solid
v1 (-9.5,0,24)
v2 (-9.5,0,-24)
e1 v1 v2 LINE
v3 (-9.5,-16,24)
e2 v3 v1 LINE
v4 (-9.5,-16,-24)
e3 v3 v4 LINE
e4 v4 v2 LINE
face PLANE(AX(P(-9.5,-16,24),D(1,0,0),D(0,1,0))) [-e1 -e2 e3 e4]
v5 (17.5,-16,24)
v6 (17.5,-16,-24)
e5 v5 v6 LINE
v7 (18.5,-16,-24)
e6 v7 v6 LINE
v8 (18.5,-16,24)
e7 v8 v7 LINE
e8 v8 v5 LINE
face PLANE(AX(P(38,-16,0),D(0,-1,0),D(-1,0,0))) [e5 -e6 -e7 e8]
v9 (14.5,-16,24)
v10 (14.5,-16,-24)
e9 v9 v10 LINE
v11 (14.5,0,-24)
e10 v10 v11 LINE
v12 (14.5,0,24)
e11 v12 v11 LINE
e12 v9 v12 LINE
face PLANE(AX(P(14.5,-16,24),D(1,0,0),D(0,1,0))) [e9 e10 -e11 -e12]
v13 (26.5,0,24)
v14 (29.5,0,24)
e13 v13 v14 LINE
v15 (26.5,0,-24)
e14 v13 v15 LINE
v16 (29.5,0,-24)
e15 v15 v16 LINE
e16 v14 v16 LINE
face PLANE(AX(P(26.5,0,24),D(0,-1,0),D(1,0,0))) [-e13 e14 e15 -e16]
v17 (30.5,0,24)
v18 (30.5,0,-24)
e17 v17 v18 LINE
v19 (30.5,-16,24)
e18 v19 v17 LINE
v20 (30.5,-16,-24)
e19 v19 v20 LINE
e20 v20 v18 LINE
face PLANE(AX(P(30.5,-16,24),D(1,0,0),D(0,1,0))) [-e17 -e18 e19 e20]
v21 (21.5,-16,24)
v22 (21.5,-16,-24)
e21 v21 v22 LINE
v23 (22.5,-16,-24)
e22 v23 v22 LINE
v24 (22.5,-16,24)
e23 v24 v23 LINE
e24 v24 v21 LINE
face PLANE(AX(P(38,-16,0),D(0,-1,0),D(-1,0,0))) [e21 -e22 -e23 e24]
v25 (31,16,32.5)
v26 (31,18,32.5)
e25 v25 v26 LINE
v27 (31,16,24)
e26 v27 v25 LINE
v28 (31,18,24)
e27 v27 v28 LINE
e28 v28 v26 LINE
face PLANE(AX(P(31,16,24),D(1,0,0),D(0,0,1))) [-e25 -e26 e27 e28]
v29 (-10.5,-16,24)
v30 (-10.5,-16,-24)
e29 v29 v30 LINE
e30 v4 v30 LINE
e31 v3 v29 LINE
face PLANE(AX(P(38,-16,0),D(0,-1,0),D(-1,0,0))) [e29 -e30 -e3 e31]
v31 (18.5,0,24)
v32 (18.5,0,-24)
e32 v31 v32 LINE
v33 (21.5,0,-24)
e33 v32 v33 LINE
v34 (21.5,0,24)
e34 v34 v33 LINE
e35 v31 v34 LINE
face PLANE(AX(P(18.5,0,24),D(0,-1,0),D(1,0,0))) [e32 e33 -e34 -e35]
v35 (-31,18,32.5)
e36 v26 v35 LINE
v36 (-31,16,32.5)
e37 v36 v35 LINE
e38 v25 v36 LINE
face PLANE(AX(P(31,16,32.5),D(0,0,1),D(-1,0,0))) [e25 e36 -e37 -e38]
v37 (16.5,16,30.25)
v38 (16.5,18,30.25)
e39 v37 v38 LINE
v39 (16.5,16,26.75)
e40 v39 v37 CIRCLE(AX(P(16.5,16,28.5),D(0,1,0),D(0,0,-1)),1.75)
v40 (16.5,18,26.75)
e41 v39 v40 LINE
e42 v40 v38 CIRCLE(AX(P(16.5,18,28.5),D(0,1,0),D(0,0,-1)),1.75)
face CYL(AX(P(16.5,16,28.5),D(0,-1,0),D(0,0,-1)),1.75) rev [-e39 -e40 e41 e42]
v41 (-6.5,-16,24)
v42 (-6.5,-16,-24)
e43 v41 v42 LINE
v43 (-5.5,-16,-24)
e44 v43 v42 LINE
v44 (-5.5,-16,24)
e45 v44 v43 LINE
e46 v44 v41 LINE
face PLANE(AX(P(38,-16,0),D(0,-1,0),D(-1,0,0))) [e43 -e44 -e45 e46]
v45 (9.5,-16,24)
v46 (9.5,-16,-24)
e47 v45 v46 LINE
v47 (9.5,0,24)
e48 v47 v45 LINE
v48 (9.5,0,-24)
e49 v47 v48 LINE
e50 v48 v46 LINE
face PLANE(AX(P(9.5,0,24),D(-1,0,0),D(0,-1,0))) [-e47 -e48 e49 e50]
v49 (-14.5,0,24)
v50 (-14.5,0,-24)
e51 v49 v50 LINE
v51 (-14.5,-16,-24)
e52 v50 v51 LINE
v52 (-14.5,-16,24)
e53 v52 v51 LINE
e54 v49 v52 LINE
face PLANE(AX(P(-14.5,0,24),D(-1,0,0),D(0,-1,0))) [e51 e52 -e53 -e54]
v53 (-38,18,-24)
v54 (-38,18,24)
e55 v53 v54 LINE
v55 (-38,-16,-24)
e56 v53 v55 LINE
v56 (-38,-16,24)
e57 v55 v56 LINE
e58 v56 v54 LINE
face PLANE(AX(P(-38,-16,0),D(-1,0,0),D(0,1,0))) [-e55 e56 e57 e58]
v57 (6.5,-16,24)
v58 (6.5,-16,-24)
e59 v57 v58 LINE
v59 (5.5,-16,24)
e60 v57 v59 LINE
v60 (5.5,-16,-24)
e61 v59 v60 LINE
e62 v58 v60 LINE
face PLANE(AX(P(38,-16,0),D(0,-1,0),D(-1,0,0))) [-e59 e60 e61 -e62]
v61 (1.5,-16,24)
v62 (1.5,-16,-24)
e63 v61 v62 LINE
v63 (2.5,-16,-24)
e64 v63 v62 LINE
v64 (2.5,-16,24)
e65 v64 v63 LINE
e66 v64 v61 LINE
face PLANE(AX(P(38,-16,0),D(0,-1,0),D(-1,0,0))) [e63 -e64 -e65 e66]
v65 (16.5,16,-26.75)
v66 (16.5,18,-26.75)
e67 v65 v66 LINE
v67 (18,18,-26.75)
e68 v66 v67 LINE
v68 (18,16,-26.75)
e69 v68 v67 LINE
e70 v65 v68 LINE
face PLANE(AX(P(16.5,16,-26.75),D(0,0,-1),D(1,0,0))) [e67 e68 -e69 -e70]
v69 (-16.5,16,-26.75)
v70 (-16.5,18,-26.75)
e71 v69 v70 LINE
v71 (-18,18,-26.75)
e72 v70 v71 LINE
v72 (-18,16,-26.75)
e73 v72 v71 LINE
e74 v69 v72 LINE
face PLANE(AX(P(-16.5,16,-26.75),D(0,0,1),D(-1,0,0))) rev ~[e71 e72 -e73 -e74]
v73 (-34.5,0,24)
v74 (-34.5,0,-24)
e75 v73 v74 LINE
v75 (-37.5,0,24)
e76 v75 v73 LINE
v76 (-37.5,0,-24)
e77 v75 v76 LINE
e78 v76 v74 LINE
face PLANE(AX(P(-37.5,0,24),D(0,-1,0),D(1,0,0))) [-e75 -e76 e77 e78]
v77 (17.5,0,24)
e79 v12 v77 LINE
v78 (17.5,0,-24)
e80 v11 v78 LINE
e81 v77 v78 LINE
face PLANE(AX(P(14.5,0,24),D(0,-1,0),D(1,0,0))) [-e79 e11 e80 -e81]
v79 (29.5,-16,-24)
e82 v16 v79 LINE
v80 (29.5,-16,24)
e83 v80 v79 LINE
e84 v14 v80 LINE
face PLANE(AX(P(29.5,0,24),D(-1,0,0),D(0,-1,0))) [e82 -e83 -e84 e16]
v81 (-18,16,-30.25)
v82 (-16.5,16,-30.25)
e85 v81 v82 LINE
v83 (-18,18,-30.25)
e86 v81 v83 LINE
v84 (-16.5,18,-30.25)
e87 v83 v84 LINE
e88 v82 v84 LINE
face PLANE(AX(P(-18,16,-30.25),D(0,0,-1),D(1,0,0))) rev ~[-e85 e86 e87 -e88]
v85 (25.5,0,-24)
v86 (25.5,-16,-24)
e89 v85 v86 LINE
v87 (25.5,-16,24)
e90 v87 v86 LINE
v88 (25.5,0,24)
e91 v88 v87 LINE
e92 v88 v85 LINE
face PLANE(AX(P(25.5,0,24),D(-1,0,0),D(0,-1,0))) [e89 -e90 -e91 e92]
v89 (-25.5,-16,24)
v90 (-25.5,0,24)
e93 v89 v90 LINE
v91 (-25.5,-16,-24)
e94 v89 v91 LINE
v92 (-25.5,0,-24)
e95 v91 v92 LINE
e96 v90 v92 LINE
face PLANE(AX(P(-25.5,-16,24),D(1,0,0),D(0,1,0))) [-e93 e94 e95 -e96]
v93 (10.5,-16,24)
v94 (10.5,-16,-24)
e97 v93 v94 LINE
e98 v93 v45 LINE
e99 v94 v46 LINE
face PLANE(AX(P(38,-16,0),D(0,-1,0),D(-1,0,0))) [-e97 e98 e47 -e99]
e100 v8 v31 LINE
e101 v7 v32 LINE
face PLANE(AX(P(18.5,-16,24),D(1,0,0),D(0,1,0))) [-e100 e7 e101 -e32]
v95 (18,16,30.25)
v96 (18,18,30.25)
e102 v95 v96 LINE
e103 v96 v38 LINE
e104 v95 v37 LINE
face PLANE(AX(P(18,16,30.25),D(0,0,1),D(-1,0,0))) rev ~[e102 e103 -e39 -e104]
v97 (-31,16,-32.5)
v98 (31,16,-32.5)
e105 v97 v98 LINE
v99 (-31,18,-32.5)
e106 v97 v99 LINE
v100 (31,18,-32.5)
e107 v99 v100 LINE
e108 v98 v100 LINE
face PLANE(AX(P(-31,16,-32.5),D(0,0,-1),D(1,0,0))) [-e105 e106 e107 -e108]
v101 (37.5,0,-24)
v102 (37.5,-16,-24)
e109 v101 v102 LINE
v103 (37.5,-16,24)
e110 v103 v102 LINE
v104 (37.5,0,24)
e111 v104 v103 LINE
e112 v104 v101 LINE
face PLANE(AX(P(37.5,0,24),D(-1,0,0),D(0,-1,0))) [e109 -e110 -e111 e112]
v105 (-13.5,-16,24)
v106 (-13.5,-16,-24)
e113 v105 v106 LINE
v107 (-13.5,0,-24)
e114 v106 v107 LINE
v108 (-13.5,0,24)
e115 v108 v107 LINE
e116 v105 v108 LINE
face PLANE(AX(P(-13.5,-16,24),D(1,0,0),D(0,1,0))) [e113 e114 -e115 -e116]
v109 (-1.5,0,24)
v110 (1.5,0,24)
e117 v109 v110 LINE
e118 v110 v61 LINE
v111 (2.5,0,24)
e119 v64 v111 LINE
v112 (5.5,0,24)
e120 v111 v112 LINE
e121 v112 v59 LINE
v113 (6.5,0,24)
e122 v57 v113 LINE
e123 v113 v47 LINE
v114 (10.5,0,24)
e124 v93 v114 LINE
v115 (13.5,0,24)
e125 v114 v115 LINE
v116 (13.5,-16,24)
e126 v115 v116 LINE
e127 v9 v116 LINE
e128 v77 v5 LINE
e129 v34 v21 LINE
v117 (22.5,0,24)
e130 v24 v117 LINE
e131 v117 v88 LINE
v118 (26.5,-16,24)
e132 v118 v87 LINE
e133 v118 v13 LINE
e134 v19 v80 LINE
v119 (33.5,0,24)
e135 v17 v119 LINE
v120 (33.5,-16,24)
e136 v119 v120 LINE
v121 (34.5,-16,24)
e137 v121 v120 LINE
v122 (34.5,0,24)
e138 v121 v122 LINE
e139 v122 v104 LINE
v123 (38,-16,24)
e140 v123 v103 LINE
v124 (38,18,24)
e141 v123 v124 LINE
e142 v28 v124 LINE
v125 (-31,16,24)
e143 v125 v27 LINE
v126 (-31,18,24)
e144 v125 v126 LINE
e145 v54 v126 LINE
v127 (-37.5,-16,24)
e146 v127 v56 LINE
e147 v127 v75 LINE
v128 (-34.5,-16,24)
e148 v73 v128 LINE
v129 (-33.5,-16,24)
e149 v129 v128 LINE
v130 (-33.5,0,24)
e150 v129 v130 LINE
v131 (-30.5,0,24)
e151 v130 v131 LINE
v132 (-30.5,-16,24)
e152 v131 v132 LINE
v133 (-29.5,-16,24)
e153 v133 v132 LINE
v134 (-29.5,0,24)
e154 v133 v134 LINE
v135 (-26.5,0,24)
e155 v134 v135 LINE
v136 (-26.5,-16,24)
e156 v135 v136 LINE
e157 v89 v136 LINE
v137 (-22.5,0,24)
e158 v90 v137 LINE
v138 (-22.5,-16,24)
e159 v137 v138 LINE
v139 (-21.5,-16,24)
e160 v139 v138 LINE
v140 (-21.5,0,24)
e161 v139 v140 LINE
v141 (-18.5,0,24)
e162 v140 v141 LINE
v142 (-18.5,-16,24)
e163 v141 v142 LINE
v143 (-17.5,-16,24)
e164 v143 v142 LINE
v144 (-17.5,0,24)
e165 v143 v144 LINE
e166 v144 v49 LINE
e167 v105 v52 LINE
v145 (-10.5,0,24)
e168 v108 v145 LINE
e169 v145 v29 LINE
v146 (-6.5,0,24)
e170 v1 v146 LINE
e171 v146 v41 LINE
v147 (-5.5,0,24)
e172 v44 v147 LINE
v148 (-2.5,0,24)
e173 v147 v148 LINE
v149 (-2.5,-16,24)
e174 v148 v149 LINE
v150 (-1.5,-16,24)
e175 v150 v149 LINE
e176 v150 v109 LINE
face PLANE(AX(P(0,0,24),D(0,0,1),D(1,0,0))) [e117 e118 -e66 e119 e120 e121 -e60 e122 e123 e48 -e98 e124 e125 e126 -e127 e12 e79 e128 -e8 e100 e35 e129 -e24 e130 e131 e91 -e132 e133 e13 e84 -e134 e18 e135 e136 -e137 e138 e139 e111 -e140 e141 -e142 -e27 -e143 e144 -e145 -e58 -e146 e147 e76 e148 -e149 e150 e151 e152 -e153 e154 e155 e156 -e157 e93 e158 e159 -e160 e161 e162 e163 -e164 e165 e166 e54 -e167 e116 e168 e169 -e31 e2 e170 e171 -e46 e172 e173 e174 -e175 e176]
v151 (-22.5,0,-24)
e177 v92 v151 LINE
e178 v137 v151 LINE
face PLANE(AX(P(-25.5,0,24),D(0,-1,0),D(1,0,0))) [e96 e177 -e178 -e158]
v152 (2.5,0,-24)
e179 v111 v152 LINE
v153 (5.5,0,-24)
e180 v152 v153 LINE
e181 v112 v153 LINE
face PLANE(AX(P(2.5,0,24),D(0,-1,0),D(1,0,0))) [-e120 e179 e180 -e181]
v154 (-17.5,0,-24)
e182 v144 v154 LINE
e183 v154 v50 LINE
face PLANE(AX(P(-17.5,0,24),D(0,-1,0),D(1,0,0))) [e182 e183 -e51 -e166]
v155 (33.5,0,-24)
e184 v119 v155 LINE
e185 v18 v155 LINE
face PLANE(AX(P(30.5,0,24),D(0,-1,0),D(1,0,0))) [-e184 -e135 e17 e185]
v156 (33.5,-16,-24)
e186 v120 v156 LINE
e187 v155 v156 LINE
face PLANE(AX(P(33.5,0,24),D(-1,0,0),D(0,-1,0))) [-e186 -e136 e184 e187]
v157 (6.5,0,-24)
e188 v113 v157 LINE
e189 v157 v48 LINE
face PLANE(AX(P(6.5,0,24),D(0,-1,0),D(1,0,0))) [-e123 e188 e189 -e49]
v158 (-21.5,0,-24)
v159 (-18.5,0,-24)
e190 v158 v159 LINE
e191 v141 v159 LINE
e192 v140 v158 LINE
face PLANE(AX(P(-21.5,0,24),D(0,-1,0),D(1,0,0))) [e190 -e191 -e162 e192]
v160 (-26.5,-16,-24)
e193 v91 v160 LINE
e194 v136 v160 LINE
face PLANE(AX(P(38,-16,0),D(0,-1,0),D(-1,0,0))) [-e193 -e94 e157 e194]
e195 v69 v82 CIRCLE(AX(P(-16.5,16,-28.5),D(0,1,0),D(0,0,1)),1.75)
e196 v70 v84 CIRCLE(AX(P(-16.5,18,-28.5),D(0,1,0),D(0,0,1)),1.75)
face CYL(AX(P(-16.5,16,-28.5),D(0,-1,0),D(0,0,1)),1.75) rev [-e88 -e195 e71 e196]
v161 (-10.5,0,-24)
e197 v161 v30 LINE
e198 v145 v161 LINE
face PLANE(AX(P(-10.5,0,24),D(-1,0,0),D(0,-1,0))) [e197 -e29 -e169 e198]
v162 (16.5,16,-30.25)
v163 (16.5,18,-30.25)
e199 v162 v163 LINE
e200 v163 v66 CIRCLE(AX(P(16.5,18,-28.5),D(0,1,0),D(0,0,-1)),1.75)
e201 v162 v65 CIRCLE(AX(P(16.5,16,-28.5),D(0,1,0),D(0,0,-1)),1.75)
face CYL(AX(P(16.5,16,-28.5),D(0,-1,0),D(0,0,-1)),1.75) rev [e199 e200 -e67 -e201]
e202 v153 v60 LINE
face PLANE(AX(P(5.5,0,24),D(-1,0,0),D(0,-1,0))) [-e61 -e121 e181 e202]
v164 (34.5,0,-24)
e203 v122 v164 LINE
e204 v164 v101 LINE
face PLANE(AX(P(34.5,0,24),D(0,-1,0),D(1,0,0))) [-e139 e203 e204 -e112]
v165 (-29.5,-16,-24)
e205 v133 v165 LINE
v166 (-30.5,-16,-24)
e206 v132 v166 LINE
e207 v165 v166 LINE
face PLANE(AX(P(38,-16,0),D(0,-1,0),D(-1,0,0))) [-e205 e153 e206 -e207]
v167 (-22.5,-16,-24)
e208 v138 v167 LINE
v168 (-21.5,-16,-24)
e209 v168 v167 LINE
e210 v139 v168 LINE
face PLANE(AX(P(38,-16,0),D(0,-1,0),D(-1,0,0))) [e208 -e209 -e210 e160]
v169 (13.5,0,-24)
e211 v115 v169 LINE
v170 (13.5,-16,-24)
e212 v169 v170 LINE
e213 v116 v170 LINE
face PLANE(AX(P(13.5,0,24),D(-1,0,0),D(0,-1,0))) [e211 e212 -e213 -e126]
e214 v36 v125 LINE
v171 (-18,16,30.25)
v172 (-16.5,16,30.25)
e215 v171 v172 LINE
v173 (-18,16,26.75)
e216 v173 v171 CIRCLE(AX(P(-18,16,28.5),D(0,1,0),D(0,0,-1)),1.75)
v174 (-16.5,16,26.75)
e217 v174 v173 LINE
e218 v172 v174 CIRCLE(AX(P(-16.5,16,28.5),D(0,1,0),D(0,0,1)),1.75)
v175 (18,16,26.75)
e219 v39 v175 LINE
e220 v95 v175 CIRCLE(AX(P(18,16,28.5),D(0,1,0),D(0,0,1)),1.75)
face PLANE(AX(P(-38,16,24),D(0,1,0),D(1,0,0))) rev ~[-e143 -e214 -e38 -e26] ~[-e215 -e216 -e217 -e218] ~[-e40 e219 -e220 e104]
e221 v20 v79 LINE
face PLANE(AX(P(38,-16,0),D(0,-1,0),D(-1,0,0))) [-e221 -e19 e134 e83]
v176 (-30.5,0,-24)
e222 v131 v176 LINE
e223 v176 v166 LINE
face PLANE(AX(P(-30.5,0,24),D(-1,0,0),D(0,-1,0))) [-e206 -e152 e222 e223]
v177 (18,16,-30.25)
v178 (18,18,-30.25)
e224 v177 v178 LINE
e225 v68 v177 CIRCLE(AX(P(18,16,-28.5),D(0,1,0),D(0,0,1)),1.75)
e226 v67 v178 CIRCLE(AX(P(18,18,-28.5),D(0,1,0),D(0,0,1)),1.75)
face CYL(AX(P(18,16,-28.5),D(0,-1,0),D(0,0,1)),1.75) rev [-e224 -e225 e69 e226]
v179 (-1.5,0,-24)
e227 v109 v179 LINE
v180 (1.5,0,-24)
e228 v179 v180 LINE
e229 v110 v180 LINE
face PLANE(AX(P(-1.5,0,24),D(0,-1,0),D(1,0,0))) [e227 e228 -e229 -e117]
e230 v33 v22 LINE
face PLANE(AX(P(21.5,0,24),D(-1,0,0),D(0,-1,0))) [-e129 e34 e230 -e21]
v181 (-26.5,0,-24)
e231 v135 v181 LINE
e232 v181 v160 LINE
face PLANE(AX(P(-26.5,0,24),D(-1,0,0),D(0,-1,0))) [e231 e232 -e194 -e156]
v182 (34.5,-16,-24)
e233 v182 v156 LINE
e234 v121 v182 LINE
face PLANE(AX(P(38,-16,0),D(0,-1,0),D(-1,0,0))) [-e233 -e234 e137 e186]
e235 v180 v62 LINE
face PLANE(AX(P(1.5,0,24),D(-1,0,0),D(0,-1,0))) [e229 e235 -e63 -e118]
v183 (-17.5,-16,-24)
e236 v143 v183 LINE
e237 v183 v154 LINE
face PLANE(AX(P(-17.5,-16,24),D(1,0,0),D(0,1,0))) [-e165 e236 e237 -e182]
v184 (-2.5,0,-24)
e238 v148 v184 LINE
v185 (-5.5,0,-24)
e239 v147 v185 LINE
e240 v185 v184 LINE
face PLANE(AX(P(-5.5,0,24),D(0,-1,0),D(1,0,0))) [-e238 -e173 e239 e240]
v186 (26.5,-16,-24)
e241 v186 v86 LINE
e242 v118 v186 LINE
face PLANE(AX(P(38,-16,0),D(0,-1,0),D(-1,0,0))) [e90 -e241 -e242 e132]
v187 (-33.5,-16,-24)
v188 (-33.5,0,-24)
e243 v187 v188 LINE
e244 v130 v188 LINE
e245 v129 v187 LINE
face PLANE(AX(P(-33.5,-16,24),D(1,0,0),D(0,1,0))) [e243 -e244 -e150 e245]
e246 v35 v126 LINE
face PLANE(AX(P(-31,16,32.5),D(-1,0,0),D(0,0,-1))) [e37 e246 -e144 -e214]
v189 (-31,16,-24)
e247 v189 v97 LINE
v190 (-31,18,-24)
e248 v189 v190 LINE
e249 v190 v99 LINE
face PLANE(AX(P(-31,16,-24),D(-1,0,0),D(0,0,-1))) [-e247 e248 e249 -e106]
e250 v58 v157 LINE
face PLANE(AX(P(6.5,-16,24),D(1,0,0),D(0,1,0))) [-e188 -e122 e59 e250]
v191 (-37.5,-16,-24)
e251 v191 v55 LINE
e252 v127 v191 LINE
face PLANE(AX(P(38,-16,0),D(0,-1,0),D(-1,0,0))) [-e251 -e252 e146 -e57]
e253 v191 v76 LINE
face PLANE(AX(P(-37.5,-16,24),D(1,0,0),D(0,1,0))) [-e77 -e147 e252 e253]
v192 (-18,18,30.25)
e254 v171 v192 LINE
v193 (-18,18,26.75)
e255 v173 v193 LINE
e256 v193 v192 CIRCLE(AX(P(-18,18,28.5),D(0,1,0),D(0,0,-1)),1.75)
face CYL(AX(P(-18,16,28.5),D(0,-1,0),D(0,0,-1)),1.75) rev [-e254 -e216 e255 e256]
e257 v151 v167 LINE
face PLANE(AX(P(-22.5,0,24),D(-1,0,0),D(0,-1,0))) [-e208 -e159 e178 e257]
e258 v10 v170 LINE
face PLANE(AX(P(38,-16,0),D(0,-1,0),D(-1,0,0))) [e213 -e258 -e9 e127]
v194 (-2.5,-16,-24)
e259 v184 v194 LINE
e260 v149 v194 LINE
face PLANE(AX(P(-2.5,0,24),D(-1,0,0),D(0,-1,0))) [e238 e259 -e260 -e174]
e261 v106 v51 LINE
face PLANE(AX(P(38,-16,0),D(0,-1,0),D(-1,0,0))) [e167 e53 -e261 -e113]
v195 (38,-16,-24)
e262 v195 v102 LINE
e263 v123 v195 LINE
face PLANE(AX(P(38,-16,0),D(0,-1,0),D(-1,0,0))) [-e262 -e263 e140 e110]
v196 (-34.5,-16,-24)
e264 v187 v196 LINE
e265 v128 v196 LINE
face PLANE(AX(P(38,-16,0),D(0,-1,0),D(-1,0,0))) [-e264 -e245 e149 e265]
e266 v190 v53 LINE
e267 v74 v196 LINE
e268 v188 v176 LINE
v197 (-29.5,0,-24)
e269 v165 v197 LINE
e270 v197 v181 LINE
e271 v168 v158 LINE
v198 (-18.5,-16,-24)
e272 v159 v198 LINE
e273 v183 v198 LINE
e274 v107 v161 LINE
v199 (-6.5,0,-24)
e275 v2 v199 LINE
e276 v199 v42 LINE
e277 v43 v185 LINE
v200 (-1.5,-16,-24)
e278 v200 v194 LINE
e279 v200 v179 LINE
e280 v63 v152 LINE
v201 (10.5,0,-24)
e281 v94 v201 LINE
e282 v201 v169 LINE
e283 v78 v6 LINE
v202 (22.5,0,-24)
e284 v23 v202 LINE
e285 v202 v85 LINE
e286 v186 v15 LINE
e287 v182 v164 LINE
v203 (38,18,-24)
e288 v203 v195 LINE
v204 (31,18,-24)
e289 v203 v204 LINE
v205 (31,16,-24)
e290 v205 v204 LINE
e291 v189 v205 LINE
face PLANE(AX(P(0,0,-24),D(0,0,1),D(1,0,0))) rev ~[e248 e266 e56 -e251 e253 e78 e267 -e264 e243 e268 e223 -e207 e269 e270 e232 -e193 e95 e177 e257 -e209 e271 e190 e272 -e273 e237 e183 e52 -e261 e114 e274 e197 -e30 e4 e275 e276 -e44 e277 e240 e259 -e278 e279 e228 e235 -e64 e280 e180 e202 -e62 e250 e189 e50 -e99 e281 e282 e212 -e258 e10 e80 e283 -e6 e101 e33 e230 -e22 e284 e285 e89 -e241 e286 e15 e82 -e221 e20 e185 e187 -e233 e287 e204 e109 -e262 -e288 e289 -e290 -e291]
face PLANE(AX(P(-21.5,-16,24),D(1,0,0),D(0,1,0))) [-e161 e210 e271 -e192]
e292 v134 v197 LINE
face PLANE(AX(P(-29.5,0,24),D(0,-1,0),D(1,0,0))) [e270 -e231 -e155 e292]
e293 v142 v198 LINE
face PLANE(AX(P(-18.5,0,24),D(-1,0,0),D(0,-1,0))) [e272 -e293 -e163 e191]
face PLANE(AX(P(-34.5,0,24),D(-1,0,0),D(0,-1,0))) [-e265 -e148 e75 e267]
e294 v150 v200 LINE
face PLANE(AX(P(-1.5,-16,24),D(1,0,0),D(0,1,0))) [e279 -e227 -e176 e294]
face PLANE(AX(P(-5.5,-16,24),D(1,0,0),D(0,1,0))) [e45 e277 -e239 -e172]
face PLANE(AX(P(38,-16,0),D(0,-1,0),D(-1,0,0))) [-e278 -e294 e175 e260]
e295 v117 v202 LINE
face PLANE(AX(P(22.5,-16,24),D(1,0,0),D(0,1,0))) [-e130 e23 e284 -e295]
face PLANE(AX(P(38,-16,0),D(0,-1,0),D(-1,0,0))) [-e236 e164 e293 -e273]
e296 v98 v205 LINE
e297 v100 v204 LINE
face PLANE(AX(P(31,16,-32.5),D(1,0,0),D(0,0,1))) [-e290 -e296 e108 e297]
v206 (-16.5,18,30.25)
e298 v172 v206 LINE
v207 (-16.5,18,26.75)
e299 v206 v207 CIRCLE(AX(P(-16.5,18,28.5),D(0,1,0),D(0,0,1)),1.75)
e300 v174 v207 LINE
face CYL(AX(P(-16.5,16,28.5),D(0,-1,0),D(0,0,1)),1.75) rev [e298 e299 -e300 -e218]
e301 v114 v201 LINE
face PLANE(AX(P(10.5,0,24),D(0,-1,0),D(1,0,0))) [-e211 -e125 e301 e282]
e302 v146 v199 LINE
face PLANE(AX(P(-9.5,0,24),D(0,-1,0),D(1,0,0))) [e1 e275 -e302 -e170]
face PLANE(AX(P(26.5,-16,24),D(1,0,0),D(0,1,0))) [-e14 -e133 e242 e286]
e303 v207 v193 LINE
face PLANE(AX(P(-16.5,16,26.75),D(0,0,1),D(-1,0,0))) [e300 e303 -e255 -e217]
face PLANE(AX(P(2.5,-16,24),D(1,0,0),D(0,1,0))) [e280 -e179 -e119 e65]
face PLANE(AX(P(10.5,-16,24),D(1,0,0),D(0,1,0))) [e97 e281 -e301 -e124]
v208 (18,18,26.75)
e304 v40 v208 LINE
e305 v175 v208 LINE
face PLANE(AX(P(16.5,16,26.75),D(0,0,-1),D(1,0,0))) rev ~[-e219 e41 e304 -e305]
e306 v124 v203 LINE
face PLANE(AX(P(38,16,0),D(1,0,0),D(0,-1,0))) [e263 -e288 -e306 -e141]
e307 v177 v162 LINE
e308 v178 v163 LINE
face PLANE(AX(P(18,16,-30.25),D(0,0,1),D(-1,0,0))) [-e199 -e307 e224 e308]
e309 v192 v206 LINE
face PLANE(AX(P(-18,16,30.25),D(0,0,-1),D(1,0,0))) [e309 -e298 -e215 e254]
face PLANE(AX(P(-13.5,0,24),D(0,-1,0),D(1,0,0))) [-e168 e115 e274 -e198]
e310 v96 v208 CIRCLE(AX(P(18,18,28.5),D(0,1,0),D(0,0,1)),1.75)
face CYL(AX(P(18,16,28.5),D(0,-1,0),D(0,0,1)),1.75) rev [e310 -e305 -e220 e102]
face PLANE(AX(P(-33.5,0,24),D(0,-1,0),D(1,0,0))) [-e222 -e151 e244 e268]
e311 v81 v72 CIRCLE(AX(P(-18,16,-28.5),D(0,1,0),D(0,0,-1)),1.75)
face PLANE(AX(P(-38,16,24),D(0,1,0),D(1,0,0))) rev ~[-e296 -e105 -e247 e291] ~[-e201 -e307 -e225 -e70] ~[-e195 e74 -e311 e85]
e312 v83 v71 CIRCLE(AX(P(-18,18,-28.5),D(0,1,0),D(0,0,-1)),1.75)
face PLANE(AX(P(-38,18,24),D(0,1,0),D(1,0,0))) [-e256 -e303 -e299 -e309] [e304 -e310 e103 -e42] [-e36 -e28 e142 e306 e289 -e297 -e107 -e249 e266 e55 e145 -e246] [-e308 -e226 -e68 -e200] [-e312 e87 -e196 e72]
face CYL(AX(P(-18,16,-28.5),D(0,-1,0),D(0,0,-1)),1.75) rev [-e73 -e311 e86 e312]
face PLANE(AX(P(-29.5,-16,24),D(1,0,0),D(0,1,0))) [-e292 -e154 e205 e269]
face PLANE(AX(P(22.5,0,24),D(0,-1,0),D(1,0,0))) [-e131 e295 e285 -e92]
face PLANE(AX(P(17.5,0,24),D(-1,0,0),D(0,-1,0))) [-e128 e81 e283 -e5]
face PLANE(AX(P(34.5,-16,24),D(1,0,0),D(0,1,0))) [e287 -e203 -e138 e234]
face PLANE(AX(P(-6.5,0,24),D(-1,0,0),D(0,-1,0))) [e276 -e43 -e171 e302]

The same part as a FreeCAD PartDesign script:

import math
import FreeCAD as App
import Part
import Sketcher
Q = App.Units.Quantity


def add_polygon(sketch, points):
    """Adds a closed chain of lines whose ends are joined by coincident constraints."""
    first, n = sketch.GeometryCount, len(points)
    for a, b in zip(points, points[1:] + points[:1]):
        sketch.addGeometry(Part.LineSegment(App.Vector(*a, 0), App.Vector(*b, 0)), False)
    for i in range(n):
        sketch.addConstraint(Sketcher.Constraint("Coincident", first + i, 2, first + (i + 1) % n, 1))

doc = App.newDocument("Part")
body = doc.addObject("PartDesign::Body", "Body")

# Sketch on XY plane
sketch1 = doc.addObject("Sketcher::SketchObject", "Sketch")
body.addObject(sketch1)
sketch1.AttachmentSupport = (doc.XY_Plane, [""])
sketch1.MapMode = "FlatFace"
add_polygon(sketch1, [(38, 16), (-38, 16), (-38, -16), (38, -16)])  # lines 0-3
sketch1.addConstraint(Sketcher.Constraint("Horizontal", 0))
sketch1.addConstraint(Sketcher.Constraint("Vertical", 1))
sketch1.addConstraint(Sketcher.Constraint("Horizontal", 2))
sketch1.addConstraint(Sketcher.Constraint("Vertical", 3))
sketch1.addConstraint(Sketcher.Constraint("Symmetric", 0, 2, 2, 2, -1, 1))
sketch1.addConstraint(Sketcher.Constraint("DistanceX", 0, 2, 0, 1, Q("76 mm")))
sketch1.addConstraint(Sketcher.Constraint("DistanceY", 1, 2, 1, 1, Q("32 mm")))
pad1 = doc.addObject("PartDesign::Pad", "Pad")
body.addObject(pad1)
pad1.Profile = sketch1
pad1.Length = 48
pad1.Midplane = True

# Sketch on XZ plane
sketch2 = doc.addObject("Sketcher::SketchObject", "Sketch001")
body.addObject(sketch2)
sketch2.AttachmentSupport = (doc.XZ_Plane, [""])
sketch2.MapMode = "FlatFace"
sketch2.AttachmentOffset = App.Placement(App.Vector(0, 0, -16), App.Rotation())
add_polygon(sketch2, [(-31, 32.5), (31, 32.5), (31, 24), (38, 24), (38, -24), (31, -24), (31, -32.5), (-31, -32.5), (-31, -24), (-38, -24), (-38, 24), (-31, 24)])  # lines 0-11
sketch2.addGeometry(Part.LineSegment(App.Vector(-16.5, 30.2, 0), App.Vector(-18, 30.2, 0)), False)  # 12
sketch2.addGeometry(Part.ArcOfCircle(Part.Circle(App.Vector(-18, 28.5, 0), App.Vector(0, 0, 1), 1.8), math.radians(90), math.radians(270)), False)  # 13
sketch2.addGeometry(Part.LineSegment(App.Vector(-18, 26.8, 0), App.Vector(-16.5, 26.8, 0)), False)  # 14
sketch2.addGeometry(Part.ArcOfCircle(Part.Circle(App.Vector(-16.5, 28.5, 0), App.Vector(0, 0, 1), 1.8), math.radians(-90), math.radians(90)), False)  # 15
sketch2.addGeometry(Part.ArcOfCircle(Part.Circle(App.Vector(18, 28.5, 0), App.Vector(0, 0, 1), 1.8), math.radians(-90), math.radians(90)), False)  # 16
sketch2.addGeometry(Part.LineSegment(App.Vector(18, 30.2, 0), App.Vector(16.5, 30.2, 0)), False)  # 17
sketch2.addGeometry(Part.ArcOfCircle(Part.Circle(App.Vector(16.5, 28.5, 0), App.Vector(0, 0, 1), 1.8), math.radians(90), math.radians(270)), False)  # 18
sketch2.addGeometry(Part.LineSegment(App.Vector(16.5, 26.8, 0), App.Vector(18, 26.8, 0)), False)  # 19
sketch2.addGeometry(Part.ArcOfCircle(Part.Circle(App.Vector(18, -28.5, 0), App.Vector(0, 0, 1), 1.8), math.radians(-90), math.radians(90)), False)  # 20
sketch2.addGeometry(Part.LineSegment(App.Vector(18, -26.8, 0), App.Vector(16.5, -26.8, 0)), False)  # 21
sketch2.addGeometry(Part.ArcOfCircle(Part.Circle(App.Vector(16.5, -28.5, 0), App.Vector(0, 0, 1), 1.8), math.radians(90), math.radians(270)), False)  # 22
sketch2.addGeometry(Part.LineSegment(App.Vector(16.5, -30.2, 0), App.Vector(18, -30.2, 0)), False)  # 23
sketch2.addGeometry(Part.ArcOfCircle(Part.Circle(App.Vector(-18, -28.5, 0), App.Vector(0, 0, 1), 1.8), math.radians(90), math.radians(270)), False)  # 24
sketch2.addGeometry(Part.LineSegment(App.Vector(-18, -30.2, 0), App.Vector(-16.5, -30.2, 0)), False)  # 25
sketch2.addGeometry(Part.ArcOfCircle(Part.Circle(App.Vector(-16.5, -28.5, 0), App.Vector(0, 0, 1), 1.8), math.radians(-90), math.radians(90)), False)  # 26
sketch2.addGeometry(Part.LineSegment(App.Vector(-16.5, -26.8, 0), App.Vector(-18, -26.8, 0)), False)  # 27
sketch2.addConstraint(Sketcher.Constraint("Tangent", 12, 2, 13, 1))
sketch2.addConstraint(Sketcher.Constraint("Tangent", 13, 2, 14, 1))
sketch2.addConstraint(Sketcher.Constraint("Tangent", 14, 2, 15, 1))
sketch2.addConstraint(Sketcher.Constraint("Tangent", 15, 2, 12, 1))
sketch2.addConstraint(Sketcher.Constraint("Tangent", 16, 2, 17, 1))
sketch2.addConstraint(Sketcher.Constraint("Tangent", 17, 2, 18, 1))
sketch2.addConstraint(Sketcher.Constraint("Tangent", 18, 2, 19, 1))
sketch2.addConstraint(Sketcher.Constraint("Tangent", 19, 2, 16, 1))
sketch2.addConstraint(Sketcher.Constraint("Tangent", 20, 2, 21, 1))
sketch2.addConstraint(Sketcher.Constraint("Tangent", 21, 2, 22, 1))
sketch2.addConstraint(Sketcher.Constraint("Tangent", 22, 2, 23, 1))
sketch2.addConstraint(Sketcher.Constraint("Tangent", 23, 2, 20, 1))
sketch2.addConstraint(Sketcher.Constraint("Tangent", 24, 2, 25, 1))
sketch2.addConstraint(Sketcher.Constraint("Tangent", 25, 2, 26, 1))
sketch2.addConstraint(Sketcher.Constraint("Tangent", 26, 2, 27, 1))
sketch2.addConstraint(Sketcher.Constraint("Tangent", 27, 2, 24, 1))
sketch2.addConstraint(Sketcher.Constraint("Horizontal", 0))
sketch2.addConstraint(Sketcher.Constraint("Vertical", 1))
sketch2.addConstraint(Sketcher.Constraint("Horizontal", 2))
sketch2.addConstraint(Sketcher.Constraint("Vertical", 3))
sketch2.addConstraint(Sketcher.Constraint("Horizontal", 4))
sketch2.addConstraint(Sketcher.Constraint("Vertical", 5))
sketch2.addConstraint(Sketcher.Constraint("Horizontal", 6))
sketch2.addConstraint(Sketcher.Constraint("Vertical", 7))
sketch2.addConstraint(Sketcher.Constraint("Horizontal", 8))
sketch2.addConstraint(Sketcher.Constraint("Vertical", 9))
sketch2.addConstraint(Sketcher.Constraint("Horizontal", 10))
sketch2.addConstraint(Sketcher.Constraint("Vertical", 11))
sketch2.addConstraint(Sketcher.Constraint("Horizontal", 12))
sketch2.addConstraint(Sketcher.Constraint("Horizontal", 14))
sketch2.addConstraint(Sketcher.Constraint("Horizontal", 17))
sketch2.addConstraint(Sketcher.Constraint("Horizontal", 19))
sketch2.addConstraint(Sketcher.Constraint("Horizontal", 21))
sketch2.addConstraint(Sketcher.Constraint("Horizontal", 23))
sketch2.addConstraint(Sketcher.Constraint("Horizontal", 25))
sketch2.addConstraint(Sketcher.Constraint("Horizontal", 27))
sketch2.addConstraint(Sketcher.Constraint("Equal", 15, 16))
sketch2.addConstraint(Sketcher.Constraint("Equal", 18, 20))
sketch2.addConstraint(Sketcher.Constraint("Equal", 22, 24))
sketch2.addConstraint(Sketcher.Constraint("Symmetric", 13, 3, 20, 3, -1, 1))
sketch2.addConstraint(Sketcher.Constraint("Symmetric", 16, 3, 24, 3, -1, 1))
sketch2.addConstraint(Sketcher.Constraint("Symmetric", 0, 2, 6, 2, -1, 1))
sketch2.addConstraint(Sketcher.Constraint("Symmetric", 2, 2, 8, 2, -1, 1))
sketch2.addConstraint(Sketcher.Constraint("Symmetric", 4, 2, 10, 2, -1, 1))
sketch2.addConstraint(Sketcher.Constraint("Symmetric", 13, 3, 16, 3, -2))
sketch2.addConstraint(Sketcher.Constraint("Symmetric", 4, 2, 7, 2, -2))
sketch2.addConstraint(Sketcher.Constraint("Vertical", 18, 3, 22, 3))
sketch2.addConstraint(Sketcher.Constraint("Vertical", 15, 3, 26, 3))
sketch2.addConstraint(Sketcher.Constraint("Equal", 14, 17))
sketch2.addConstraint(Sketcher.Constraint("DistanceX", 0, 1, 0, 2, Q("62 mm")))
sketch2.addConstraint(Sketcher.Constraint("Radius", 13, Q("1.75 mm")))
sketch2.addConstraint(Sketcher.Constraint("DistanceX", 13, 3, 16, 3, Q("36 mm")))
sketch2.addConstraint(Sketcher.Constraint("DistanceY", 20, 3, 16, 3, Q("57 mm")))
sketch2.addConstraint(Sketcher.Constraint("DistanceX", 2, 1, 2, 2, Q("7 mm")))
sketch2.addConstraint(Sketcher.Constraint("DistanceY", 3, 2, 3, 1, Q("48 mm")))
sketch2.addConstraint(Sketcher.Constraint("DistanceX", 12, 2, 12, 1, Q("1.5 mm")))
sketch2.addConstraint(Sketcher.Constraint("DistanceY", 1, 2, 1, 1, Q("8.5 mm")))
pad2 = doc.addObject("PartDesign::Pad", "Pad001")
body.addObject(pad2)
pad2.Profile = sketch2
pad2.Length = 2
pad2.Reversed = True

# Sketch on XY plane
sketch3 = doc.addObject("Sketcher::SketchObject", "Sketch002")
body.addObject(sketch3)
sketch3.AttachmentSupport = (doc.XY_Plane, [""])
sketch3.MapMode = "FlatFace"
sketch3.AttachmentOffset = App.Placement(App.Vector(0, 0, 24), App.Rotation())
add_polygon(sketch3, [(-37.5, -16), (-34.5, -16), (-34.5, 0), (-37.5, 0)])  # lines 0-3
add_polygon(sketch3, [(-33.5, -16), (-30.5, -16), (-30.5, 0), (-33.5, 0)])  # lines 4-7
add_polygon(sketch3, [(-29.5, -16), (-26.5, -16), (-26.5, 0), (-29.5, 0)])  # lines 8-11
add_polygon(sketch3, [(-25.5, -16), (-22.5, -16), (-22.5, 0), (-25.5, 0)])  # lines 12-15
add_polygon(sketch3, [(-21.5, -16), (-18.5, -16), (-18.5, 0), (-21.5, 0)])  # lines 16-19
add_polygon(sketch3, [(-17.5, -16), (-14.5, -16), (-14.5, 0), (-17.5, 0)])  # lines 20-23
add_polygon(sketch3, [(-13.5, -16), (-10.5, -16), (-10.5, 0), (-13.5, 0)])  # lines 24-27
add_polygon(sketch3, [(-9.5, -16), (-6.5, -16), (-6.5, 0), (-9.5, 0)])  # lines 28-31
add_polygon(sketch3, [(-5.5, -16), (-2.5, -16), (-2.5, 0), (-5.5, 0)])  # lines 32-35
add_polygon(sketch3, [(-1.5, -16), (1.5, -16), (1.5, 0), (-1.5, 0)])  # lines 36-39
add_polygon(sketch3, [(2.5, -16), (5.5, -16), (5.5, 0), (2.5, 0)])  # lines 40-43
add_polygon(sketch3, [(6.5, -16), (9.5, -16), (9.5, 0), (6.5, 0)])  # lines 44-47
add_polygon(sketch3, [(10.5, -16), (13.5, -16), (13.5, 0), (10.5, 0)])  # lines 48-51
add_polygon(sketch3, [(14.5, -16), (17.5, -16), (17.5, 0), (14.5, 0)])  # lines 52-55
add_polygon(sketch3, [(18.5, -16), (21.5, -16), (21.5, 0), (18.5, 0)])  # lines 56-59
add_polygon(sketch3, [(22.5, -16), (25.5, -16), (25.5, 0), (22.5, 0)])  # lines 60-63
add_polygon(sketch3, [(26.5, -16), (29.5, -16), (29.5, 0), (26.5, 0)])  # lines 64-67
add_polygon(sketch3, [(30.5, -16), (33.5, -16), (33.5, 0), (30.5, 0)])  # lines 68-71
add_polygon(sketch3, [(34.5, -16), (37.5, -16), (37.5, 0), (34.5, 0)])  # lines 72-75
sketch3.addConstraint(Sketcher.Constraint("Horizontal", 0))
sketch3.addConstraint(Sketcher.Constraint("Vertical", 1))
sketch3.addConstraint(Sketcher.Constraint("Horizontal", 2))
sketch3.addConstraint(Sketcher.Constraint("Vertical", 3))
sketch3.addConstraint(Sketcher.Constraint("Horizontal", 4))
sketch3.addConstraint(Sketcher.Constraint("Vertical", 5))
sketch3.addConstraint(Sketcher.Constraint("Horizontal", 6))
sketch3.addConstraint(Sketcher.Constraint("Vertical", 7))
sketch3.addConstraint(Sketcher.Constraint("Horizontal", 8))
sketch3.addConstraint(Sketcher.Constraint("Vertical", 9))
sketch3.addConstraint(Sketcher.Constraint("Horizontal", 10))
sketch3.addConstraint(Sketcher.Constraint("Vertical", 11))
sketch3.addConstraint(Sketcher.Constraint("Horizontal", 12))
sketch3.addConstraint(Sketcher.Constraint("Vertical", 13))
sketch3.addConstraint(Sketcher.Constraint("Horizontal", 14))
sketch3.addConstraint(Sketcher.Constraint("Vertical", 15))
sketch3.addConstraint(Sketcher.Constraint("Horizontal", 16))
sketch3.addConstraint(Sketcher.Constraint("Vertical", 17))
sketch3.addConstraint(Sketcher.Constraint("Horizontal", 18))
sketch3.addConstraint(Sketcher.Constraint("Vertical", 19))
sketch3.addConstraint(Sketcher.Constraint("Horizontal", 20))
sketch3.addConstraint(Sketcher.Constraint("Vertical", 21))
sketch3.addConstraint(Sketcher.Constraint("Horizontal", 22))
sketch3.addConstraint(Sketcher.Constraint("Vertical", 23))
sketch3.addConstraint(Sketcher.Constraint("Horizontal", 24))
sketch3.addConstraint(Sketcher.Constraint("Vertical", 25))
sketch3.addConstraint(Sketcher.Constraint("Horizontal", 26))
sketch3.addConstraint(Sketcher.Constraint("Vertical", 27))
sketch3.addConstraint(Sketcher.Constraint("Horizontal", 28))
sketch3.addConstraint(Sketcher.Constraint("Vertical", 29))
sketch3.addConstraint(Sketcher.Constraint("Horizontal", 30))
sketch3.addConstraint(Sketcher.Constraint("Vertical", 31))
sketch3.addConstraint(Sketcher.Constraint("Horizontal", 32))
sketch3.addConstraint(Sketcher.Constraint("Vertical", 33))
sketch3.addConstraint(Sketcher.Constraint("Horizontal", 34))
sketch3.addConstraint(Sketcher.Constraint("Vertical", 35))
sketch3.addConstraint(Sketcher.Constraint("Horizontal", 36))
sketch3.addConstraint(Sketcher.Constraint("Vertical", 37))
sketch3.addConstraint(Sketcher.Constraint("Horizontal", 38))
sketch3.addConstraint(Sketcher.Constraint("Vertical", 39))
sketch3.addConstraint(Sketcher.Constraint("Horizontal", 40))
sketch3.addConstraint(Sketcher.Constraint("Vertical", 41))
sketch3.addConstraint(Sketcher.Constraint("Horizontal", 42))
sketch3.addConstraint(Sketcher.Constraint("Vertical", 43))
sketch3.addConstraint(Sketcher.Constraint("Horizontal", 44))
sketch3.addConstraint(Sketcher.Constraint("Vertical", 45))
sketch3.addConstraint(Sketcher.Constraint("Horizontal", 46))
sketch3.addConstraint(Sketcher.Constraint("Vertical", 47))
sketch3.addConstraint(Sketcher.Constraint("Horizontal", 48))
sketch3.addConstraint(Sketcher.Constraint("Vertical", 49))
sketch3.addConstraint(Sketcher.Constraint("Horizontal", 50))
sketch3.addConstraint(Sketcher.Constraint("Vertical", 51))
sketch3.addConstraint(Sketcher.Constraint("Horizontal", 52))
sketch3.addConstraint(Sketcher.Constraint("Vertical", 53))
sketch3.addConstraint(Sketcher.Constraint("Horizontal", 54))
sketch3.addConstraint(Sketcher.Constraint("Vertical", 55))
sketch3.addConstraint(Sketcher.Constraint("Horizontal", 56))
sketch3.addConstraint(Sketcher.Constraint("Vertical", 57))
sketch3.addConstraint(Sketcher.Constraint("Horizontal", 58))
sketch3.addConstraint(Sketcher.Constraint("Vertical", 59))
sketch3.addConstraint(Sketcher.Constraint("Horizontal", 60))
sketch3.addConstraint(Sketcher.Constraint("Vertical", 61))
sketch3.addConstraint(Sketcher.Constraint("Horizontal", 62))
sketch3.addConstraint(Sketcher.Constraint("Vertical", 63))
sketch3.addConstraint(Sketcher.Constraint("Horizontal", 64))
sketch3.addConstraint(Sketcher.Constraint("Vertical", 65))
sketch3.addConstraint(Sketcher.Constraint("Horizontal", 66))
sketch3.addConstraint(Sketcher.Constraint("Vertical", 67))
sketch3.addConstraint(Sketcher.Constraint("Horizontal", 68))
sketch3.addConstraint(Sketcher.Constraint("Vertical", 69))
sketch3.addConstraint(Sketcher.Constraint("Horizontal", 70))
sketch3.addConstraint(Sketcher.Constraint("Vertical", 71))
sketch3.addConstraint(Sketcher.Constraint("Horizontal", 72))
sketch3.addConstraint(Sketcher.Constraint("Vertical", 73))
sketch3.addConstraint(Sketcher.Constraint("Horizontal", 74))
sketch3.addConstraint(Sketcher.Constraint("Vertical", 75))
sketch3.addConstraint(Sketcher.Constraint("Symmetric", 37, 2, 38, 2, -1, 1))
sketch3.addConstraint(Sketcher.Constraint("Symmetric", 34, 2, 41, 2, -1, 1))
sketch3.addConstraint(Sketcher.Constraint("Symmetric", 30, 2, 45, 2, -1, 1))
sketch3.addConstraint(Sketcher.Constraint("Symmetric", 26, 2, 49, 2, -1, 1))
sketch3.addConstraint(Sketcher.Constraint("Symmetric", 22, 2, 53, 2, -1, 1))
sketch3.addConstraint(Sketcher.Constraint("Symmetric", 18, 2, 57, 2, -1, 1))
sketch3.addConstraint(Sketcher.Constraint("Symmetric", 14, 2, 61, 2, -1, 1))
sketch3.addConstraint(Sketcher.Constraint("Symmetric", 10, 2, 65, 2, -1, 1))
sketch3.addConstraint(Sketcher.Constraint("Symmetric", 6, 2, 69, 2, -1, 1))
sketch3.addConstraint(Sketcher.Constraint("Symmetric", 2, 2, 73, 2, -1, 1))
sketch3.addConstraint(Sketcher.Constraint("Symmetric", 33, 2, 42, 2, -2))
sketch3.addConstraint(Sketcher.Constraint("Symmetric", 29, 2, 46, 2, -2))
sketch3.addConstraint(Sketcher.Constraint("Symmetric", 25, 2, 50, 2, -2))
sketch3.addConstraint(Sketcher.Constraint("Symmetric", 21, 2, 54, 2, -2))
sketch3.addConstraint(Sketcher.Constraint("Symmetric", 17, 2, 58, 2, -2))
sketch3.addConstraint(Sketcher.Constraint("Symmetric", 13, 2, 62, 2, -2))
sketch3.addConstraint(Sketcher.Constraint("Symmetric", 9, 2, 66, 2, -2))
sketch3.addConstraint(Sketcher.Constraint("Symmetric", 5, 2, 70, 2, -2))
sketch3.addConstraint(Sketcher.Constraint("Symmetric", 1, 2, 74, 2, -2))
sketch3.addConstraint(Sketcher.Constraint("Horizontal", 3, 2, 4, 2))
sketch3.addConstraint(Sketcher.Constraint("Horizontal", 7, 2, 8, 2))
sketch3.addConstraint(Sketcher.Constraint("Horizontal", 11, 2, 12, 2))
sketch3.addConstraint(Sketcher.Constraint("Horizontal", 15, 2, 16, 2))
sketch3.addConstraint(Sketcher.Constraint("Horizontal", 19, 2, 20, 2))
sketch3.addConstraint(Sketcher.Constraint("Horizontal", 23, 2, 24, 2))
sketch3.addConstraint(Sketcher.Constraint("Horizontal", 27, 2, 28, 2))
sketch3.addConstraint(Sketcher.Constraint("Horizontal", 31, 2, 32, 2))
sketch3.addConstraint(Sketcher.Constraint("Horizontal", 35, 2, 36, 2))
sketch3.addConstraint(Sketcher.Constraint("Horizontal", 39, 2, 40, 2))
sketch3.addConstraint(Sketcher.Constraint("Horizontal", 43, 2, 44, 2))
sketch3.addConstraint(Sketcher.Constraint("Horizontal", 47, 2, 48, 2))
sketch3.addConstraint(Sketcher.Constraint("Horizontal", 51, 2, 52, 2))
sketch3.addConstraint(Sketcher.Constraint("Horizontal", 55, 2, 56, 2))
sketch3.addConstraint(Sketcher.Constraint("Horizontal", 59, 2, 60, 2))
sketch3.addConstraint(Sketcher.Constraint("Horizontal", 63, 2, 64, 2))
sketch3.addConstraint(Sketcher.Constraint("Horizontal", 67, 2, 68, 2))
sketch3.addConstraint(Sketcher.Constraint("Horizontal", 71, 2, 72, 2))
sketch3.addConstraint(Sketcher.Constraint("Equal", 2, 4))
sketch3.addConstraint(Sketcher.Constraint("Equal", 6, 8))
sketch3.addConstraint(Sketcher.Constraint("Equal", 10, 12))
sketch3.addConstraint(Sketcher.Constraint("Equal", 14, 16))
sketch3.addConstraint(Sketcher.Constraint("Equal", 18, 20))
sketch3.addConstraint(Sketcher.Constraint("Equal", 22, 24))
sketch3.addConstraint(Sketcher.Constraint("Equal", 26, 28))
sketch3.addConstraint(Sketcher.Constraint("Equal", 30, 32))
sketch3.addConstraint(Sketcher.Constraint("Equal", 34, 36))
sketch3.addConstraint(Sketcher.Constraint("DistanceX", 0, 1, 0, 2, Q("3 mm")))
sketch3.addConstraint(Sketcher.Constraint("DistanceY", 1, 1, 1, 2, Q("16 mm")))
sketch3.addConstraint(Sketcher.Constraint("DistanceX", 0, 2, -1, 1, Q("34.5 mm")))
sketch3.addConstraint(Sketcher.Constraint("DistanceX", 4, 2, -1, 1, Q("30.5 mm")))
sketch3.addConstraint(Sketcher.Constraint("DistanceX", 8, 2, -1, 1, Q("26.5 mm")))
sketch3.addConstraint(Sketcher.Constraint("DistanceX", 12, 2, -1, 1, Q("22.5 mm")))
sketch3.addConstraint(Sketcher.Constraint("DistanceX", 16, 2, -1, 1, Q("18.5 mm")))
sketch3.addConstraint(Sketcher.Constraint("DistanceX", 20, 2, -1, 1, Q("14.5 mm")))
sketch3.addConstraint(Sketcher.Constraint("DistanceX", 24, 2, -1, 1, Q("10.5 mm")))
sketch3.addConstraint(Sketcher.Constraint("DistanceX", 28, 2, -1, 1, Q("6.5 mm")))
sketch3.addConstraint(Sketcher.Constraint("DistanceX", 32, 2, -1, 1, Q("2.5 mm")))
pocket1 = doc.addObject("PartDesign::Pocket", "Pocket")
body.addObject(pocket1)
pocket1.Profile = sketch3
pocket1.Type = "ThroughAll"

doc.recompute()
